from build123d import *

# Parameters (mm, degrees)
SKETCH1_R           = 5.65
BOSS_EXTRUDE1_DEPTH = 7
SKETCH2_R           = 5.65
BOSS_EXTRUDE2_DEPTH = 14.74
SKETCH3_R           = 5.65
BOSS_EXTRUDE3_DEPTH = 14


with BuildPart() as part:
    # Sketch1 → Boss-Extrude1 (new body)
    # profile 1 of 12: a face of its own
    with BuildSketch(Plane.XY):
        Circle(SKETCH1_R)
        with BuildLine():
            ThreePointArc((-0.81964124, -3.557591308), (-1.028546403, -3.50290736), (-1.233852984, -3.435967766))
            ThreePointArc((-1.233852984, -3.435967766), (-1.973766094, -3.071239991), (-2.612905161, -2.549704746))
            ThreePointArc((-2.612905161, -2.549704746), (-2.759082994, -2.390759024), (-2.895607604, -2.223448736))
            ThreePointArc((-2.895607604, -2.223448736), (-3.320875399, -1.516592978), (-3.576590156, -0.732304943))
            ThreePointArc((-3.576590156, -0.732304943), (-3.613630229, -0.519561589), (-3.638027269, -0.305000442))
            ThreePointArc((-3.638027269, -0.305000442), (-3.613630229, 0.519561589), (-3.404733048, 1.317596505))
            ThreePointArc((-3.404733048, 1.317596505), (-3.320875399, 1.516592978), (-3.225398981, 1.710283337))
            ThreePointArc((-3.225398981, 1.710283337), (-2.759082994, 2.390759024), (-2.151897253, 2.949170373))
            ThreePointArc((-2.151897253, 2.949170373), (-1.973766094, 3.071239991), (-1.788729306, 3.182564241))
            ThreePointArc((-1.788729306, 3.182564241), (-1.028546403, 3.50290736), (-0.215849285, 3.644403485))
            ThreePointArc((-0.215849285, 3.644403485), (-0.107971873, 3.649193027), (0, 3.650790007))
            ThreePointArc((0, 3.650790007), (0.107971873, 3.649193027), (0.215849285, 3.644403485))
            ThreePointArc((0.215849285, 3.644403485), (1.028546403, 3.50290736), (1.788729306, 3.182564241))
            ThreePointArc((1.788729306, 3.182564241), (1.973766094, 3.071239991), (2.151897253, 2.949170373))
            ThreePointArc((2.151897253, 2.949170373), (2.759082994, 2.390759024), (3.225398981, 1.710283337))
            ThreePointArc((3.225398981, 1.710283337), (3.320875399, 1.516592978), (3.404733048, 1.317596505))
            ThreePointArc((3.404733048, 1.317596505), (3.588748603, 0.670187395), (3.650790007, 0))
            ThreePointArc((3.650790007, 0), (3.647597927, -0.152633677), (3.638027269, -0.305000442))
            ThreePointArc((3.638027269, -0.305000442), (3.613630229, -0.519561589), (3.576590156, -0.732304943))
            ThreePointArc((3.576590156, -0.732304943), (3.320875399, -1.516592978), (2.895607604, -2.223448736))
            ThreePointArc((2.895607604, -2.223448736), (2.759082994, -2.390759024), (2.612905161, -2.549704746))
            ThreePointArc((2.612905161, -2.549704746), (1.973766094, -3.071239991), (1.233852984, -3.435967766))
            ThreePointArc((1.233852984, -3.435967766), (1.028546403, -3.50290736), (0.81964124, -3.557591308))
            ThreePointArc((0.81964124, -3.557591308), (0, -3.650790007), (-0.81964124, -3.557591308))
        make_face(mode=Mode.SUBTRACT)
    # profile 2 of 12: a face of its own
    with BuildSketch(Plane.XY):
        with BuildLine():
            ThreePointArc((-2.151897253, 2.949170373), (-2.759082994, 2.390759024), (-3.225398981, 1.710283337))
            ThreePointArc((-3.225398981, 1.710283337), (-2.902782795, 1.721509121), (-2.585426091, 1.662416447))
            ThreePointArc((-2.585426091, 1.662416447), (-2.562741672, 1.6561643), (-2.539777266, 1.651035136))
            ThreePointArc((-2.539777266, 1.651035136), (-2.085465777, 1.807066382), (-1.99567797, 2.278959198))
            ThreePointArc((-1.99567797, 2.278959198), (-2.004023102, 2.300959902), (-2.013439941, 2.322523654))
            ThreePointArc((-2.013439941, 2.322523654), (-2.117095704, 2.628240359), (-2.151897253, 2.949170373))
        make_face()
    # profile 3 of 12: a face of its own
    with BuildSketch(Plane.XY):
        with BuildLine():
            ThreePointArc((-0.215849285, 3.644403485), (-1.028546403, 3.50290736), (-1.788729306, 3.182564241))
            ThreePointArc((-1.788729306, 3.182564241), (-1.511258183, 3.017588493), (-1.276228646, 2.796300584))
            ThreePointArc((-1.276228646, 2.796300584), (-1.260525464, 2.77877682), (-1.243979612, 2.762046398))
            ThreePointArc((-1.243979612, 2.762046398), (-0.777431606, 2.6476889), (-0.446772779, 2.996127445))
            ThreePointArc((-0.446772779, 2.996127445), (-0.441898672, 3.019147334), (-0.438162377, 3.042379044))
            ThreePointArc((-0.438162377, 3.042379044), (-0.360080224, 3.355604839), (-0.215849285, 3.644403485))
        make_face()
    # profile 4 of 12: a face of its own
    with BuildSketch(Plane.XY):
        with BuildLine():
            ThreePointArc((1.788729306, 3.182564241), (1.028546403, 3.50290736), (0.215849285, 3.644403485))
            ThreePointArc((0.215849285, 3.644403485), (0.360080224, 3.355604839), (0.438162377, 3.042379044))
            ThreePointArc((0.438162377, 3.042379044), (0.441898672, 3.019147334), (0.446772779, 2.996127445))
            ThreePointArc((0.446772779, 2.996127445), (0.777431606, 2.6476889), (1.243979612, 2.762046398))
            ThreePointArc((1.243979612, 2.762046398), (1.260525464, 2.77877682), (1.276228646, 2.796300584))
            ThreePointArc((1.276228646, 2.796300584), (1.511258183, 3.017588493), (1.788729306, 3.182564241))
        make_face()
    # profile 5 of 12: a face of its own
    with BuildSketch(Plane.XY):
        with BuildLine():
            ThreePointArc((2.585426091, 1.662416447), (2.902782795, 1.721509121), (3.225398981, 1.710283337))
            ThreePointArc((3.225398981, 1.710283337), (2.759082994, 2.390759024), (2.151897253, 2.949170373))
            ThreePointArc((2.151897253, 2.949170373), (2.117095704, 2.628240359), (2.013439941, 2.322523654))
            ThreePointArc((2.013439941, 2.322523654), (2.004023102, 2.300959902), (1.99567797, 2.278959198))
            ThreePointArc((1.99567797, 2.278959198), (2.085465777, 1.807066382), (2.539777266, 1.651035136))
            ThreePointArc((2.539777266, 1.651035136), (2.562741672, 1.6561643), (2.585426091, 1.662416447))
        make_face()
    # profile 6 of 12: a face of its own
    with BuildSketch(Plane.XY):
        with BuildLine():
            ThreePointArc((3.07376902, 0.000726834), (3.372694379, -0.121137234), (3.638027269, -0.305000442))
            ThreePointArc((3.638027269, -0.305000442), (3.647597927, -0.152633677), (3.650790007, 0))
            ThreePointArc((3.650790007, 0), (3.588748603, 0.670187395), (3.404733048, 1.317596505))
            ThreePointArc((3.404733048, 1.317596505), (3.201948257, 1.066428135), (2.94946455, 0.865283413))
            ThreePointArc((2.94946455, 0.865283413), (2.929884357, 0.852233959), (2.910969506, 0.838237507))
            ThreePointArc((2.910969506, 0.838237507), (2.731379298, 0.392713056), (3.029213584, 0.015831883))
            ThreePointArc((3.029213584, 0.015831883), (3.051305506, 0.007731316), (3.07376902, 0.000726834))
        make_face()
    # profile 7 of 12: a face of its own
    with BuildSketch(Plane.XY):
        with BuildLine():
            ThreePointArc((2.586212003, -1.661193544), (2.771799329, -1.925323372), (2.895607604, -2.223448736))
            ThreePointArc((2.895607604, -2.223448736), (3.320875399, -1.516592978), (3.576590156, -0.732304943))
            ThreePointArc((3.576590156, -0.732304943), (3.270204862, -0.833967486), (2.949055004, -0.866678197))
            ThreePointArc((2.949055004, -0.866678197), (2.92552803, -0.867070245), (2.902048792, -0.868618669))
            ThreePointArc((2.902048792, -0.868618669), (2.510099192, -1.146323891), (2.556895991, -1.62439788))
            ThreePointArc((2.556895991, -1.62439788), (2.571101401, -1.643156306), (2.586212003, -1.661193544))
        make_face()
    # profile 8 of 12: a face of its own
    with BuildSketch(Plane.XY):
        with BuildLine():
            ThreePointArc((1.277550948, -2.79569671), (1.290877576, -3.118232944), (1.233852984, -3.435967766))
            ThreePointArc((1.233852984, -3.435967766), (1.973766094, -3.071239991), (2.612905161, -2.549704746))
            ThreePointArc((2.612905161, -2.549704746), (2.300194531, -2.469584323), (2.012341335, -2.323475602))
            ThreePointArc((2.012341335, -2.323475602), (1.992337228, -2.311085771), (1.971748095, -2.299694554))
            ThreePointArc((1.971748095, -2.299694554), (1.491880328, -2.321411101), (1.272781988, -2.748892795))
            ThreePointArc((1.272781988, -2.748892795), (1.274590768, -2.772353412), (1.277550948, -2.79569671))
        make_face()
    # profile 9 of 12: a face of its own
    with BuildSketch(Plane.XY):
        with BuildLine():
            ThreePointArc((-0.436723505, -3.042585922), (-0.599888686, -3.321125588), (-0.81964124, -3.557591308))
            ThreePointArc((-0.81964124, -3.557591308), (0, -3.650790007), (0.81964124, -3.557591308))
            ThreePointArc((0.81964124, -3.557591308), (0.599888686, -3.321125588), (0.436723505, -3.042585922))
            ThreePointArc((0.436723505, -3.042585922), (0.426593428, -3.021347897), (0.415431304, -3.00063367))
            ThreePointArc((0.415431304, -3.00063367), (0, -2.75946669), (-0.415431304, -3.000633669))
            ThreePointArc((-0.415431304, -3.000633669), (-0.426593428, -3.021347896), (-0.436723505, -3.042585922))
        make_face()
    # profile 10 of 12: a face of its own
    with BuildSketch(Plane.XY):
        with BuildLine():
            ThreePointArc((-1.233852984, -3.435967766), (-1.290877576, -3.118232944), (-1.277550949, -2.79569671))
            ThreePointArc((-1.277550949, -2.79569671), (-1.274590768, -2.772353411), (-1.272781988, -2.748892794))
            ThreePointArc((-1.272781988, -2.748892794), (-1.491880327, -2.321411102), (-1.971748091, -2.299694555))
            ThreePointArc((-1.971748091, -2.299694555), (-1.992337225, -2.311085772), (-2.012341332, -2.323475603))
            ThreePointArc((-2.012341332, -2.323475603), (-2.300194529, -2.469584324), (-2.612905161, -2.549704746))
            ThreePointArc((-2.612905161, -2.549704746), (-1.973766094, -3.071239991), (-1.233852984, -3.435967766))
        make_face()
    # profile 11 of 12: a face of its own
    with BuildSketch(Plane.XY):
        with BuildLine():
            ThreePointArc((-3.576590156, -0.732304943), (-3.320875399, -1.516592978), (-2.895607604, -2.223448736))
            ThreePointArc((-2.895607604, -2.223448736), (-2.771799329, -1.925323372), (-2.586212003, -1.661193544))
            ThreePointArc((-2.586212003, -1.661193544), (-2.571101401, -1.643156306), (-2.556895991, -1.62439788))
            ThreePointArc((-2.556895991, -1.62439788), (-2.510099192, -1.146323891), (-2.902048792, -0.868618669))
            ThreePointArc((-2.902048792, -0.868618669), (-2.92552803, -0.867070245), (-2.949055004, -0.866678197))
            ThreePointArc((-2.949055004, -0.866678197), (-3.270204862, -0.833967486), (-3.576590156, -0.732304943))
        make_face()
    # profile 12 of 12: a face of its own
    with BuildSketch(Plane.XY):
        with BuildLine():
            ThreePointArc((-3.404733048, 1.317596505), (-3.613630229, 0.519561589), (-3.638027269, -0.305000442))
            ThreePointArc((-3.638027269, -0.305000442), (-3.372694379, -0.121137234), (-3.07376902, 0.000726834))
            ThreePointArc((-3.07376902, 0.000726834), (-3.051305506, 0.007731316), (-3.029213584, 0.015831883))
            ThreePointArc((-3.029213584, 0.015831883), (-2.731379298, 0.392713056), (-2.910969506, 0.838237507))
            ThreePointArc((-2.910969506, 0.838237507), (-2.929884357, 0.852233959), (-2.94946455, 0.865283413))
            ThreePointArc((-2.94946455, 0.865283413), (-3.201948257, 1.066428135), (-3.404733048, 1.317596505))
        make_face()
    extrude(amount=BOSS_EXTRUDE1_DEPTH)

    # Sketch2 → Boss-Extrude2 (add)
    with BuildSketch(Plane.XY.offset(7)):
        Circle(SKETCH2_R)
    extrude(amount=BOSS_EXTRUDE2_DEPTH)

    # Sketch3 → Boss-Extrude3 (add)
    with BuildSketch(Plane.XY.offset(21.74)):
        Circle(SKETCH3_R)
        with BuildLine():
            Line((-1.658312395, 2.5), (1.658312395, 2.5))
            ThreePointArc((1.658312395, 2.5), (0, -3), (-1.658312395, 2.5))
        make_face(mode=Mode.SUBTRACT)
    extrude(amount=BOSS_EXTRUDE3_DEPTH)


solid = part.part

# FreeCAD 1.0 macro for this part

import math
import FreeCAD as App
import Part
import Sketcher

V = App.Vector

doc = App.newDocument("Part")
body = doc.addObject("PartDesign::Body", "Body")

# Sketch on XY plane
sketch1 = body.newObject("Sketcher::SketchObject", "Sketch")
sketch1.AttachmentSupport = (doc.getObject("XY_Plane"), [""])
sketch1.MapMode = "FlatFace"
sketch1.addGeometry(Part.Circle(V(0, 0, 0), V(0, 0, 1), 5.65), False)
sketch1.addGeometry(Part.ArcOfCircle(Part.Circle(V(0, 0, 0), V(0, 0, 1), 3.651), math.radians(-77.03), math.radians(-70.25)), False)
sketch1.addGeometry(Part.ArcOfCircle(Part.Circle(V(1.786, -2.439, 0), V(0, 0, 1), 1.478), math.radians(-156), math.radians(-131)), False)
sketch1.addGeometry(Part.ArcOfCircle(Part.Circle(V(0, -3.238, 0), V(0, 0, 1), 0.478), math.radians(24.09), math.radians(29.73)), False)
sketch1.addGeometry(Part.ArcOfCircle(Part.Circle(V(0, -3.238, 0), V(0, 0, 1), 0.478), math.radians(30), math.radians(150)), False)
sketch1.addGeometry(Part.ArcOfCircle(Part.Circle(V(0, -3.238, 0), V(0, 0, 1), 0.478), math.radians(150.27), math.radians(155.91)), False)
sketch1.addGeometry(Part.ArcOfCircle(Part.Circle(V(-1.786, -2.439, 0), V(0, 0, 1), 1.478), math.radians(-49), math.radians(-24)), False)
sketch1.addGeometry(Part.ArcOfCircle(Part.Circle(V(0, 0, 0), V(0, 0, 1), 3.651), math.radians(-109.75), math.radians(-102.97)), False)
sketch1.addGeometry(Part.ArcOfCircle(Part.Circle(V(0.183, -3.018, 0), V(0, 0, 1), 1.478), math.radians(171), math.radians(196)), False)
sketch1.addGeometry(Part.ArcOfCircle(Part.Circle(V(-1.751, -2.724, 0), V(0, 0, 1), 0.478), math.radians(-8.64), math.radians(-3)), False)
sketch1.addGeometry(Part.ArcOfCircle(Part.Circle(V(-1.751, -2.724, 0), V(0, 0, 1), 0.478), math.radians(-3), math.radians(118)), False)
sketch1.addGeometry(Part.ArcOfCircle(Part.Circle(V(-1.751, -2.724, 0), V(0, 0, 1), 0.478), math.radians(117.54), math.radians(123.18)), False)
sketch1.addGeometry(Part.ArcOfCircle(Part.Circle(V(-2.821, -1.087, 0), V(0, 0, 1), 1.478), math.radians(-82), math.radians(-57)), False)
sketch1.addGeometry(Part.ArcOfCircle(Part.Circle(V(0, 0, 0), V(0, 0, 1), 3.651), math.radians(-142.48), math.radians(-135.7)), False)
sketch1.addGeometry(Part.ArcOfCircle(Part.Circle(V(-1.477, -2.638, 0), V(0, 0, 1), 1.478), math.radians(139), math.radians(164)), False)
sketch1.addGeometry(Part.ArcOfCircle(Part.Circle(V(-2.945, -1.345, 0), V(0, 0, 1), 0.478), math.radians(-41.36), math.radians(-35.73)), False)
sketch1.addGeometry(Part.ArcOfCircle(Part.Circle(V(-2.945, -1.345, 0), V(0, 0, 1), 0.478), math.radians(-36), math.radians(85)), False)
sketch1.addGeometry(Part.ArcOfCircle(Part.Circle(V(-2.945, -1.345, 0), V(0, 0, 1), 0.478), math.radians(84.82), math.radians(90.45)), False)
sketch1.addGeometry(Part.ArcOfCircle(Part.Circle(V(-2.961, 0.611, 0), V(0, 0, 1), 1.478), math.radians(-115), math.radians(-90)), False)
sketch1.addGeometry(Part.ArcOfCircle(Part.Circle(V(0, 0, 0), V(0, 0, 1), 3.651), math.radians(-175.21), math.radians(-168.43)), False)
sketch1.addGeometry(Part.ArcOfCircle(Part.Circle(V(-2.669, -1.42, 0), V(0, 0, 1), 1.478), math.radians(106), math.radians(131)), False)
sketch1.addGeometry(Part.ArcOfCircle(Part.Circle(V(-3.205, 0.461, 0), V(0, 0, 1), 0.478), math.radians(-74.09), math.radians(-68.45)), False)
sketch1.addGeometry(Part.ArcOfCircle(Part.Circle(V(-3.205, 0.461, 0), V(0, 0, 1), 0.478), math.radians(-68), math.radians(52)), False)
sketch1.addGeometry(Part.ArcOfCircle(Part.Circle(V(-3.205, 0.461, 0), V(0, 0, 1), 0.478), math.radians(52.09), math.radians(57.73)), False)
sketch1.addGeometry(Part.ArcOfCircle(Part.Circle(V(-2.16, 2.115, 0), V(0, 0, 1), 1.478), math.radians(-147), math.radians(-122)), False)
sketch1.addGeometry(Part.ArcOfCircle(Part.Circle(V(0, 0, 0), V(0, 0, 1), 3.651), math.radians(152.07), math.radians(158.84)), False)
sketch1.addGeometry(Part.ArcOfCircle(Part.Circle(V(-3.013, 0.248, 0), V(0, 0, 1), 1.478), math.radians(73), math.radians(98)), False)
sketch1.addGeometry(Part.ArcOfCircle(Part.Circle(V(-2.447, 2.12, 0), V(0, 0, 1), 0.478), math.radians(-106.82), math.radians(-101.18)), False)
sketch1.addGeometry(Part.ArcOfCircle(Part.Circle(V(-2.447, 2.12, 0), V(0, 0, 1), 0.478), math.radians(-101), math.radians(19)), False)
sketch1.addGeometry(Part.ArcOfCircle(Part.Circle(V(-2.447, 2.12, 0), V(0, 0, 1), 0.478), math.radians(19.36), math.radians(25)), False)
sketch1.addGeometry(Part.ArcOfCircle(Part.Circle(V(-0.674, 2.947, 0), V(0, 0, 1), 1.478), math.radians(180), math.radians(205)), False)
sketch1.addGeometry(Part.ArcOfCircle(Part.Circle(V(0, 0, 0), V(0, 0, 1), 3.651), math.radians(119.34), math.radians(126.12)), False)
sketch1.addGeometry(Part.ArcOfCircle(Part.Circle(V(-2.401, 1.837, 0), V(0, 0, 1), 1.478), math.radians(40), math.radians(66)), False)
sketch1.addGeometry(Part.ArcOfCircle(Part.Circle(V(-0.912, 3.107, 0), V(0, 0, 1), 0.478), math.radians(-139.55), math.radians(-133.91)), False)
sketch1.addGeometry(Part.ArcOfCircle(Part.Circle(V(-0.912, 3.107, 0), V(0, 0, 1), 0.478), math.radians(-134), math.radians(-13)), False)
sketch1.addGeometry(Part.ArcOfCircle(Part.Circle(V(-0.912, 3.107, 0), V(0, 0, 1), 0.478), math.radians(-13.36), math.radians(-7.73)), False)
sketch1.addGeometry(Part.ArcOfCircle(Part.Circle(V(1.026, 2.844, 0), V(0, 0, 1), 1.478), math.radians(147), math.radians(172)), False)
sketch1.addGeometry(Part.ArcOfCircle(Part.Circle(V(0, 0, 0), V(0, 0, 1), 3.651), math.radians(90), math.radians(93.39)), False)
sketch1.addGeometry(Part.ArcOfCircle(Part.Circle(V(0, 0, 0), V(0, 0, 1), 3.651), math.radians(86.61), math.radians(90)), False)
sketch1.addGeometry(Part.ArcOfCircle(Part.Circle(V(-1.026, 2.844, 0), V(0, 0, 1), 1.478), math.radians(8), math.radians(33)), False)
sketch1.addGeometry(Part.ArcOfCircle(Part.Circle(V(0.912, 3.107, 0), V(0, 0, 1), 0.478), math.radians(-172.27), math.radians(-166.64)), False)
sketch1.addGeometry(Part.ArcOfCircle(Part.Circle(V(0.912, 3.107, 0), V(0, 0, 1), 0.478), math.radians(-167), math.radians(-46)), False)
sketch1.addGeometry(Part.ArcOfCircle(Part.Circle(V(0.912, 3.107, 0), V(0, 0, 1), 0.478), math.radians(-46.09), math.radians(-40.45)), False)
sketch1.addGeometry(Part.ArcOfCircle(Part.Circle(V(2.401, 1.837, 0), V(0, 0, 1), 1.478), math.radians(114), math.radians(140)), False)
sketch1.addGeometry(Part.ArcOfCircle(Part.Circle(V(0, 0, 0), V(0, 0, 1), 3.651), math.radians(53.88), math.radians(60.66)), False)
sketch1.addGeometry(Part.ArcOfCircle(Part.Circle(V(0.674, 2.947, 0), V(0, 0, 1), 1.478), math.radians(-25), math.radians(0)), False)
sketch1.addGeometry(Part.ArcOfCircle(Part.Circle(V(2.447, 2.12, 0), V(0, 0, 1), 0.478), math.radians(155), math.radians(160.64)), False)
sketch1.addGeometry(Part.ArcOfCircle(Part.Circle(V(2.447, 2.12, 0), V(0, 0, 1), 0.478), math.radians(161), math.radians(281)), False)
sketch1.addGeometry(Part.ArcOfCircle(Part.Circle(V(2.447, 2.12, 0), V(0, 0, 1), 0.478), math.radians(-78.82), math.radians(-73.18)), False)
sketch1.addGeometry(Part.ArcOfCircle(Part.Circle(V(3.013, 0.248, 0), V(0, 0, 1), 1.478), math.radians(82), math.radians(107)), False)
sketch1.addGeometry(Part.ArcOfCircle(Part.Circle(V(0, 0, 0), V(0, 0, 1), 3.651), math.radians(21.16), math.radians(27.93)), False)
sketch1.addGeometry(Part.ArcOfCircle(Part.Circle(V(2.16, 2.115, 0), V(0, 0, 1), 1.478), math.radians(-58), math.radians(-33)), False)
sketch1.addGeometry(Part.ArcOfCircle(Part.Circle(V(3.205, 0.461, 0), V(0, 0, 1), 0.478), math.radians(122.27), math.radians(127.91)), False)
sketch1.addGeometry(Part.ArcOfCircle(Part.Circle(V(3.205, 0.461, 0), V(0, 0, 1), 0.478), math.radians(128), math.radians(248)), False)
sketch1.addGeometry(Part.ArcOfCircle(Part.Circle(V(3.205, 0.461, 0), V(0, 0, 1), 0.478), math.radians(-111.55), math.radians(-105.91)), False)
sketch1.addGeometry(Part.ArcOfCircle(Part.Circle(V(2.669, -1.42, 0), V(0, 0, 1), 1.478), math.radians(49), math.radians(74)), False)
sketch1.addGeometry(Part.ArcOfCircle(Part.Circle(V(0, 0, 0), V(0, 0, 1), 3.651), math.radians(-11.57), math.radians(-4.79)), False)
sketch1.addGeometry(Part.ArcOfCircle(Part.Circle(V(2.961, 0.611, 0), V(0, 0, 1), 1.478), math.radians(-90), math.radians(-65)), False)
sketch1.addGeometry(Part.ArcOfCircle(Part.Circle(V(2.945, -1.345, 0), V(0, 0, 1), 0.478), math.radians(89.55), math.radians(95.18)), False)
sketch1.addGeometry(Part.ArcOfCircle(Part.Circle(V(2.945, -1.345, 0), V(0, 0, 1), 0.478), math.radians(95), math.radians(216)), False)
sketch1.addGeometry(Part.ArcOfCircle(Part.Circle(V(2.945, -1.345, 0), V(0, 0, 1), 0.478), math.radians(-144.27), math.radians(-138.64)), False)
sketch1.addGeometry(Part.ArcOfCircle(Part.Circle(V(1.477, -2.638, 0), V(0, 0, 1), 1.478), math.radians(16), math.radians(41)), False)
sketch1.addGeometry(Part.ArcOfCircle(Part.Circle(V(0, 0, 0), V(0, 0, 1), 3.651), math.radians(-44.3), math.radians(-37.52)), False)
sketch1.addGeometry(Part.ArcOfCircle(Part.Circle(V(2.821, -1.087, 0), V(0, 0, 1), 1.478), math.radians(-123), math.radians(-98)), False)
sketch1.addGeometry(Part.ArcOfCircle(Part.Circle(V(1.751, -2.724, 0), V(0, 0, 1), 0.478), math.radians(56.82), math.radians(62.46)), False)
sketch1.addGeometry(Part.ArcOfCircle(Part.Circle(V(1.751, -2.724, 0), V(0, 0, 1), 0.478), math.radians(62), math.radians(183)), False)
sketch1.addGeometry(Part.ArcOfCircle(Part.Circle(V(1.751, -2.724, 0), V(0, 0, 1), 0.478), math.radians(-177), math.radians(-171.36)), False)
sketch1.addGeometry(Part.ArcOfCircle(Part.Circle(V(-0.183, -3.018, 0), V(0, 0, 1), 1.478), math.radians(-16), math.radians(9)), False)
sketch1.addConstraint(Sketcher.Constraint("Coincident", 1, 1, 2, 2))
sketch1.addConstraint(Sketcher.Constraint("Tangent", 2, 1, 3, 1))
sketch1.addConstraint(Sketcher.Constraint("Tangent", 3, 2, 4, 1))
sketch1.addConstraint(Sketcher.Constraint("Tangent", 4, 2, 5, 1))
sketch1.addConstraint(Sketcher.Constraint("Tangent", 5, 2, 6, 2))
sketch1.addConstraint(Sketcher.Constraint("Coincident", 6, 1, 7, 2))
sketch1.addConstraint(Sketcher.Constraint("Coincident", 7, 1, 8, 2))
sketch1.addConstraint(Sketcher.Constraint("Tangent", 8, 1, 9, 1))
sketch1.addConstraint(Sketcher.Constraint("Tangent", 9, 2, 10, 1))
sketch1.addConstraint(Sketcher.Constraint("Tangent", 10, 2, 11, 1))
sketch1.addConstraint(Sketcher.Constraint("Tangent", 11, 2, 12, 2))
sketch1.addConstraint(Sketcher.Constraint("Coincident", 12, 1, 13, 2))
sketch1.addConstraint(Sketcher.Constraint("Coincident", 13, 1, 14, 2))
sketch1.addConstraint(Sketcher.Constraint("Tangent", 14, 1, 15, 1))
sketch1.addConstraint(Sketcher.Constraint("Tangent", 15, 2, 16, 1))
sketch1.addConstraint(Sketcher.Constraint("Tangent", 16, 2, 17, 1))
sketch1.addConstraint(Sketcher.Constraint("Tangent", 17, 2, 18, 2))
sketch1.addConstraint(Sketcher.Constraint("Coincident", 18, 1, 19, 2))
sketch1.addConstraint(Sketcher.Constraint("Coincident", 19, 1, 20, 2))
sketch1.addConstraint(Sketcher.Constraint("Tangent", 20, 1, 21, 1))
sketch1.addConstraint(Sketcher.Constraint("Tangent", 21, 2, 22, 1))
sketch1.addConstraint(Sketcher.Constraint("Tangent", 22, 2, 23, 1))
sketch1.addConstraint(Sketcher.Constraint("Tangent", 23, 2, 24, 2))
sketch1.addConstraint(Sketcher.Constraint("Coincident", 24, 1, 25, 2))
sketch1.addConstraint(Sketcher.Constraint("Coincident", 25, 1, 26, 2))
sketch1.addConstraint(Sketcher.Constraint("Tangent", 26, 1, 27, 1))
sketch1.addConstraint(Sketcher.Constraint("Tangent", 27, 2, 28, 1))
sketch1.addConstraint(Sketcher.Constraint("Tangent", 28, 2, 29, 1))
sketch1.addConstraint(Sketcher.Constraint("Tangent", 29, 2, 30, 2))
sketch1.addConstraint(Sketcher.Constraint("Coincident", 30, 1, 31, 2))
sketch1.addConstraint(Sketcher.Constraint("Coincident", 31, 1, 32, 2))
sketch1.addConstraint(Sketcher.Constraint("Tangent", 32, 1, 33, 1))
sketch1.addConstraint(Sketcher.Constraint("Tangent", 33, 2, 34, 1))
sketch1.addConstraint(Sketcher.Constraint("Tangent", 34, 2, 35, 1))
sketch1.addConstraint(Sketcher.Constraint("Tangent", 35, 2, 36, 2))
sketch1.addConstraint(Sketcher.Constraint("Coincident", 36, 1, 37, 2))
sketch1.addConstraint(Sketcher.Constraint("Tangent", 37, 1, 38, 2))
sketch1.addConstraint(Sketcher.Constraint("Coincident", 38, 1, 39, 2))
sketch1.addConstraint(Sketcher.Constraint("Tangent", 39, 1, 40, 1))
sketch1.addConstraint(Sketcher.Constraint("Tangent", 40, 2, 41, 1))
sketch1.addConstraint(Sketcher.Constraint("Tangent", 41, 2, 42, 1))
sketch1.addConstraint(Sketcher.Constraint("Tangent", 42, 2, 43, 2))
sketch1.addConstraint(Sketcher.Constraint("Coincident", 43, 1, 44, 2))
sketch1.addConstraint(Sketcher.Constraint("Coincident", 44, 1, 45, 2))
sketch1.addConstraint(Sketcher.Constraint("Tangent", 45, 1, 46, 1))
sketch1.addConstraint(Sketcher.Constraint("Tangent", 46, 2, 47, 1))
sketch1.addConstraint(Sketcher.Constraint("Tangent", 47, 2, 48, 1))
sketch1.addConstraint(Sketcher.Constraint("Tangent", 48, 2, 49, 2))
sketch1.addConstraint(Sketcher.Constraint("Coincident", 49, 1, 50, 2))
sketch1.addConstraint(Sketcher.Constraint("Coincident", 50, 1, 51, 2))
sketch1.addConstraint(Sketcher.Constraint("Tangent", 51, 1, 52, 1))
sketch1.addConstraint(Sketcher.Constraint("Tangent", 52, 2, 53, 1))
sketch1.addConstraint(Sketcher.Constraint("Tangent", 53, 2, 54, 1))
sketch1.addConstraint(Sketcher.Constraint("Tangent", 54, 2, 55, 2))
sketch1.addConstraint(Sketcher.Constraint("Coincident", 55, 1, 56, 2))
sketch1.addConstraint(Sketcher.Constraint("Coincident", 56, 1, 57, 2))
sketch1.addConstraint(Sketcher.Constraint("Tangent", 57, 1, 58, 1))
sketch1.addConstraint(Sketcher.Constraint("Tangent", 58, 2, 59, 1))
sketch1.addConstraint(Sketcher.Constraint("Tangent", 59, 2, 60, 1))
sketch1.addConstraint(Sketcher.Constraint("Tangent", 60, 2, 61, 2))
sketch1.addConstraint(Sketcher.Constraint("Coincident", 61, 1, 62, 2))
sketch1.addConstraint(Sketcher.Constraint("Coincident", 62, 1, 63, 2))
sketch1.addConstraint(Sketcher.Constraint("Tangent", 63, 1, 64, 1))
sketch1.addConstraint(Sketcher.Constraint("Tangent", 64, 2, 65, 1))
sketch1.addConstraint(Sketcher.Constraint("Tangent", 65, 2, 66, 1))
sketch1.addConstraint(Sketcher.Constraint("Tangent", 66, 2, 67, 2))
sketch1.addConstraint(Sketcher.Constraint("Coincident", 67, 1, 1, 2))
sketch1.addConstraint(Sketcher.Constraint("Coincident", 0, 3, -1, 1))
sketch1.addConstraint(Sketcher.Constraint("Coincident", 1, 3, -1, 1))
sketch1.addConstraint(Sketcher.Constraint("Coincident", 7, 3, -1, 1))
sketch1.addConstraint(Sketcher.Constraint("Coincident", 13, 3, -1, 1))
sketch1.addConstraint(Sketcher.Constraint("Coincident", 19, 3, -1, 1))
sketch1.addConstraint(Sketcher.Constraint("Coincident", 25, 3, -1, 1))
sketch1.addConstraint(Sketcher.Constraint("Coincident", 31, 3, -1, 1))
sketch1.addConstraint(Sketcher.Constraint("Coincident", 37, 3, -1, 1))
sketch1.addConstraint(Sketcher.Constraint("Coincident", 44, 3, -1, 1))
sketch1.addConstraint(Sketcher.Constraint("Coincident", 50, 3, -1, 1))
sketch1.addConstraint(Sketcher.Constraint("Coincident", 56, 3, -1, 1))
sketch1.addConstraint(Sketcher.Constraint("Coincident", 62, 3, -1, 1))
sketch1.addConstraint(Sketcher.Constraint("Coincident", 5, 3, 3, 3))
sketch1.addConstraint(Sketcher.Constraint("Coincident", 11, 3, 9, 3))
sketch1.addConstraint(Sketcher.Constraint("Coincident", 17, 3, 15, 3))
sketch1.addConstraint(Sketcher.Constraint("Coincident", 23, 3, 21, 3))
sketch1.addConstraint(Sketcher.Constraint("Coincident", 29, 3, 27, 3))
sketch1.addConstraint(Sketcher.Constraint("Coincident", 35, 3, 33, 3))
sketch1.addConstraint(Sketcher.Constraint("Coincident", 42, 3, 40, 3))
sketch1.addConstraint(Sketcher.Constraint("Coincident", 48, 3, 46, 3))
sketch1.addConstraint(Sketcher.Constraint("Coincident", 54, 3, 52, 3))
sketch1.addConstraint(Sketcher.Constraint("Coincident", 60, 3, 58, 3))
sketch1.addConstraint(Sketcher.Constraint("Coincident", 66, 3, 64, 3))
sketch1.addConstraint(Sketcher.Constraint("Equal", 2, 6))
sketch1.addConstraint(Sketcher.Constraint("Equal", 1, 7))
sketch1.addConstraint(Sketcher.Constraint("Equal", 6, 8))
sketch1.addConstraint(Sketcher.Constraint("Equal", 5, 9))
sketch1.addConstraint(Sketcher.Constraint("Equal", 8, 12))
sketch1.addConstraint(Sketcher.Constraint("Equal", 7, 13))
sketch1.addConstraint(Sketcher.Constraint("Equal", 12, 14))
sketch1.addConstraint(Sketcher.Constraint("Equal", 11, 15))
sketch1.addConstraint(Sketcher.Constraint("Equal", 14, 18))
sketch1.addConstraint(Sketcher.Constraint("Equal", 13, 19))
sketch1.addConstraint(Sketcher.Constraint("Equal", 18, 20))
sketch1.addConstraint(Sketcher.Constraint("Equal", 17, 21))
sketch1.addConstraint(Sketcher.Constraint("Equal", 20, 24))
sketch1.addConstraint(Sketcher.Constraint("Equal", 19, 25))
sketch1.addConstraint(Sketcher.Constraint("Equal", 24, 26))
sketch1.addConstraint(Sketcher.Constraint("Equal", 23, 27))
sketch1.addConstraint(Sketcher.Constraint("Equal", 26, 30))
sketch1.addConstraint(Sketcher.Constraint("Equal", 25, 31))
sketch1.addConstraint(Sketcher.Constraint("Equal", 30, 32))
sketch1.addConstraint(Sketcher.Constraint("Equal", 29, 33))
sketch1.addConstraint(Sketcher.Constraint("Equal", 32, 36))
sketch1.addConstraint(Sketcher.Constraint("Equal", 31, 37))
sketch1.addConstraint(Sketcher.Constraint("Equal", 37, 38))
sketch1.addConstraint(Sketcher.Constraint("Equal", 36, 39))
sketch1.addConstraint(Sketcher.Constraint("Equal", 35, 40))
sketch1.addConstraint(Sketcher.Constraint("Equal", 39, 43))
sketch1.addConstraint(Sketcher.Constraint("Equal", 38, 44))
sketch1.addConstraint(Sketcher.Constraint("Equal", 43, 45))
sketch1.addConstraint(Sketcher.Constraint("Equal", 42, 46))
sketch1.addConstraint(Sketcher.Constraint("Equal", 45, 49))
sketch1.addConstraint(Sketcher.Constraint("Equal", 44, 50))
sketch1.addConstraint(Sketcher.Constraint("Equal", 49, 51))
sketch1.addConstraint(Sketcher.Constraint("Equal", 48, 52))
sketch1.addConstraint(Sketcher.Constraint("Equal", 51, 55))
sketch1.addConstraint(Sketcher.Constraint("Equal", 50, 56))
sketch1.addConstraint(Sketcher.Constraint("Equal", 55, 57))
sketch1.addConstraint(Sketcher.Constraint("Equal", 54, 58))
sketch1.addConstraint(Sketcher.Constraint("Equal", 57, 61))
sketch1.addConstraint(Sketcher.Constraint("Equal", 56, 62))
sketch1.addConstraint(Sketcher.Constraint("Equal", 61, 63))
sketch1.addConstraint(Sketcher.Constraint("Equal", 60, 64))
sketch1.addConstraint(Sketcher.Constraint("Equal", 63, 67))
sketch1.addConstraint(Sketcher.Constraint("Symmetric", 2, 3, 6, 3, -2))
sketch1.addConstraint(Sketcher.Constraint("Symmetric", 36, 3, 39, 3, -2))
sketch1.addConstraint(Sketcher.Constraint("Symmetric", 32, 3, 43, 3, -2))
sketch1.addConstraint(Sketcher.Constraint("Symmetric", 30, 3, 45, 3, -2))
sketch1.addConstraint(Sketcher.Constraint("Symmetric", 26, 3, 49, 3, -2))
sketch1.addConstraint(Sketcher.Constraint("Symmetric", 24, 3, 51, 3, -2))
sketch1.addConstraint(Sketcher.Constraint("Symmetric", 20, 3, 55, 3, -2))
sketch1.addConstraint(Sketcher.Constraint("Symmetric", 18, 3, 57, 3, -2))
sketch1.addConstraint(Sketcher.Constraint("Symmetric", 14, 3, 61, 3, -2))
sketch1.addConstraint(Sketcher.Constraint("Symmetric", 12, 3, 63, 3, -2))
sketch1.addConstraint(Sketcher.Constraint("Symmetric", 8, 3, 67, 3, -2))
sketch1.addConstraint(Sketcher.Constraint("PointOnObject", 37, 1, -2))
sketch1.addConstraint(Sketcher.Constraint("Horizontal", 3, 2, 4, 2))
sketch1.addConstraint(Sketcher.Constraint("Horizontal", 34, 2, 40, 2))
sketch1.addConstraint(Sketcher.Constraint("Horizontal", 33, 2, 41, 2))
sketch1.addConstraint(Sketcher.Constraint("Horizontal", 28, 2, 46, 2))
sketch1.addConstraint(Sketcher.Constraint("Horizontal", 27, 2, 47, 2))
sketch1.addConstraint(Sketcher.Constraint("Horizontal", 22, 2, 52, 2))
sketch1.addConstraint(Sketcher.Constraint("Horizontal", 21, 2, 53, 2))
sketch1.addConstraint(Sketcher.Constraint("Horizontal", 16, 2, 58, 2))
sketch1.addConstraint(Sketcher.Constraint("Horizontal", 15, 2, 59, 2))
sketch1.addConstraint(Sketcher.Constraint("Horizontal", 10, 2, 64, 2))
sketch1.addConstraint(Sketcher.Constraint("Horizontal", 9, 2, 65, 2))
sketch1.addConstraint(Sketcher.Constraint("Diameter", 0, 11.3))
sketch1.addConstraint(Sketcher.Constraint("Radius", 1, 3.65079))
sketch1.addConstraint(Sketcher.Constraint("Radius", 3, 0.478392))
sketch1.addConstraint(Sketcher.Constraint("DistanceY", 19, 1, -1, 1, 0.305))
sketch1.addConstraint(Sketcher.Constraint("Radius", 2, 1.477805))
sketch1.addConstraint(Sketcher.Constraint("DistanceX", 21, 3, -1, 1, 3.204902))
sketch1.addConstraint(Sketcher.Constraint("DistanceX", 25, 1, -1, 1, 3.225399))
sketch1.addConstraint(Sketcher.Constraint("DistanceY", -1, 1, 32, 1, 2.796301))
sketch1.addConstraint(Sketcher.Constraint("DistanceX", -1, 1, 2, 3, 1.78581))
sketch1.addConstraint(Sketcher.Constraint("DistanceY", 3, 3, -1, 1, 3.237859))
sketch1.addConstraint(Sketcher.Constraint("DistanceY", 8, 3, -1, 1, 3.017608))
sketch1.addConstraint(Sketcher.Constraint("DistanceX", 9, 3, -1, 1, 1.750518))
sketch1.addConstraint(Sketcher.Constraint("DistanceY", 9, 3, -1, 1, 2.72386))
sketch1.addConstraint(Sketcher.Constraint("DistanceX", 12, 3, -1, 1, 2.82114))
sketch1.addConstraint(Sketcher.Constraint("DistanceY", 14, 3, -1, 1, 2.63778))
sketch1.addConstraint(Sketcher.Constraint("DistanceX", 15, 3, -1, 1, 2.94526))
sketch1.addConstraint(Sketcher.Constraint("DistanceX", 18, 3, -1, 1, 2.960779))
sketch1.addConstraint(Sketcher.Constraint("DistanceY", -1, 1, 18, 3, 0.61108))
sketch1.addConstraint(Sketcher.Constraint("DistanceX", 24, 3, -1, 1, 2.160391))
sketch1.addConstraint(Sketcher.Constraint("DistanceY", -1, 1, 24, 3, 2.114791))
sketch1.addConstraint(Sketcher.Constraint("DistanceY", -1, 1, 26, 3, 0.247821))
sketch1.addConstraint(Sketcher.Constraint("DistanceX", 27, 3, -1, 1, 2.44701))
sketch1.addConstraint(Sketcher.Constraint("DistanceY", -1, 1, 30, 3, 2.947071))
sketch1.addConstraint(Sketcher.Constraint("DistanceX", 32, 3, -1, 1, 2.400721))
sketch1.addConstraint(Sketcher.Constraint("DistanceX", 33, 3, -1, 1, 0.91221))
sketch1.addConstraint(Sketcher.Constraint("DistanceX", -1, 1, 3, 2, 0.415431))
sketch1.addConstraint(Sketcher.Constraint("DistanceX", 9, 2, -1, 1, 1.272782))
sketch1.addConstraint(Sketcher.Constraint("DistanceX", 10, 2, -1, 1, 1.971748))
sketch1.addConstraint(Sketcher.Constraint("DistanceX", 16, 2, -1, 1, 2.902049))
sketch1.addConstraint(Sketcher.Constraint("DistanceY", -1, 1, 21, 2, 0.015832))
sketch1.addConstraint(Sketcher.Constraint("DistanceX", 22, 2, -1, 1, 2.91097))
sketch1.addConstraint(Sketcher.Constraint("DistanceY", -1, 1, 28, 2, 2.278959))
sketch1.addConstraint(Sketcher.Constraint("DistanceX", 33, 2, -1, 1, 1.24398))
sketch1.addConstraint(Sketcher.Constraint("DistanceY", -1, 1, 35, 2, 3.042379))
sketch1.addConstraint(Sketcher.Constraint("DistanceX", 15, 2, -1, 1, 2.556896))
sketch1.addConstraint(Sketcher.Constraint("DistanceX", 27, 2, -1, 1, 2.539777))
sketch1.addConstraint(Sketcher.Constraint("DistanceX", 34, 2, -1, 1, 0.446773))
pad1 = body.newObject("PartDesign::Pad", "Pad")
pad1.Profile = sketch1
pad1.Length = 7

# Sketch on XY plane
sketch2 = body.newObject("Sketcher::SketchObject", "Sketch001")
sketch2.AttachmentSupport = (doc.getObject("XY_Plane"), [""])
sketch2.MapMode = "FlatFace"
sketch2.AttachmentOffset = App.Placement(V(0, 0, 7), App.Rotation())
sketch2.addGeometry(Part.Circle(V(0, 0, 0), V(0, 0, 1), 6), False)
sketch2.addConstraint(Sketcher.Constraint("Coincident", 0, 3, -1, 1))
sketch2.addConstraint(Sketcher.Constraint("Diameter", 0, 11.3))
pad2 = body.newObject("PartDesign::Pad", "Pad001")
pad2.Profile = sketch2
pad2.Length = 14.74

# Sketch on XY plane
sketch3 = body.newObject("Sketcher::SketchObject", "Sketch002")
sketch3.AttachmentSupport = (doc.getObject("XY_Plane"), [""])
sketch3.MapMode = "FlatFace"
sketch3.AttachmentOffset = App.Placement(V(0, 0, 21.74), App.Rotation())
sketch3.addGeometry(Part.Circle(V(0, 0, 0), V(0, 0, 1), 5.7), False)
sketch3.addGeometry(Part.ArcOfCircle(Part.Circle(V(0, 0, 0), V(0, 0, 1), 3), math.radians(124), math.radians(416)), False)
sketch3.addGeometry(Part.LineSegment(V(-1.7, 2.5, 0), V(1.7, 2.5, 0)), False)
sketch3.addConstraint(Sketcher.Constraint("Coincident", 1, 1, 2, 1))
sketch3.addConstraint(Sketcher.Constraint("Coincident", 2, 2, 1, 2))
sketch3.addConstraint(Sketcher.Constraint("Horizontal", 2))
sketch3.addConstraint(Sketcher.Constraint("Coincident", 0, 3, -1, 1))
sketch3.addConstraint(Sketcher.Constraint("Coincident", 1, 3, -1, 1))
sketch3.addConstraint(Sketcher.Constraint("Radius", 1, 3.0))
sketch3.addConstraint(Sketcher.Constraint("Diameter", 0, 11.3))
sketch3.addConstraint(Sketcher.Constraint("DistanceY", -1, 1, 1, 1, 2.5))
pad3 = body.newObject("PartDesign::Pad", "Pad002")
pad3.Profile = sketch3
pad3.Length = 14

doc.recompute()
